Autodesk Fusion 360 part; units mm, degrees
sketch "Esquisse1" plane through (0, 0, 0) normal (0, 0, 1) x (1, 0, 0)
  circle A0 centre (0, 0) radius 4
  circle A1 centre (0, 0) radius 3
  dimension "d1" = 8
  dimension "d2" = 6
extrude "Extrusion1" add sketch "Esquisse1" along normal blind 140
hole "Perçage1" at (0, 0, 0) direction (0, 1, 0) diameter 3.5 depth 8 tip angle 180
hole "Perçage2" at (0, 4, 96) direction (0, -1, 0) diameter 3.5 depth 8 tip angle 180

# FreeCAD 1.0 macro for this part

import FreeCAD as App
import Part
import Sketcher
from FreeCAD import Vector

doc = App.newDocument("Part")
params = doc.addObject("Spreadsheet::Sheet", "Params")
for row, (alias, value) in enumerate([
    ("sketch1_diameter", "8 mm"),
    ("sketch1_diameter2", "6 mm"),
    ("pad1_length", "140 mm"),
    ("sketch2_diameter", "3.5 mm"),
    ("hole_diameter", "3.5 mm"),
    ("hole_depth", "8 mm"),
    ("sketch3_diameter", "3.5 mm"),
    ("hole2_diameter", "3.5 mm"),
    ("hole2_depth", "8 mm"),
], start=1):
    params.set(f"A{row}", alias)
    params.set(f"B{row}", "=" + value)
    params.setAlias(f"B{row}", alias)

body = doc.addObject("PartDesign::Body", "Body")

sketch1 = body.newObject("Sketcher::SketchObject", "Sketch")
sketch1.AttachmentSupport = (doc.getObject("XY_Plane"), [""])
sketch1.MapMode = "FlatFace"
sketch1.addGeometry([
    Part.Circle(Vector(0, 0, 0), Vector(0, 0, 1), 4),
    Part.Circle(Vector(0, 0, 0), Vector(0, 0, 1), 3),
], False)
sketch1.addConstraint([
    Sketcher.Constraint("Coincident", 0, 3, -1, 1),
    Sketcher.Constraint("Coincident", 1, 3, -1, 1),
    Sketcher.Constraint("Diameter", 0, 8.0),
    Sketcher.Constraint("Diameter", 1, 6.0),
])
sketch1.setExpression("Constraints[2]", "Params.sketch1_diameter")
sketch1.setExpression("Constraints[3]", "Params.sketch1_diameter2")
pad1 = body.newObject("PartDesign::Pad", "Pad")
pad1.Profile = sketch1
pad1.setExpression("Length", "Params.pad1_length")

sketch2 = body.newObject("Sketcher::SketchObject", "Sketch001")
sketch2.AttachmentSupport = (doc.getObject("XZ_Plane"), [""])
sketch2.MapMode = "FlatFace"
sketch2.addGeometry(Part.Circle(Vector(0, 0, 0), Vector(0, 0, 1), 1.75), False)
sketch2.addConstraint([
    Sketcher.Constraint("Coincident", 0, 3, -1, 1),
    Sketcher.Constraint("Diameter", 0, 3.5),
])
sketch2.setExpression("Constraints[1]", "Params.sketch2_diameter")
doc.recompute()
hole = body.newObject("PartDesign::Hole", "Hole")
hole.Profile = sketch2
hole.ThreadType = "None"
hole.setExpression("Diameter", "Params.hole_diameter")
hole.DepthType = "Dimension"
hole.setExpression("Depth", "Params.hole_depth")
hole.DrillPoint = "Flat"

sketch3 = body.newObject("Sketcher::SketchObject", "Sketch002")
sketch3.AttachmentSupport = (doc.getObject("XZ_Plane"), [""])
sketch3.MapMode = "FlatFace"
sketch3.AttachmentOffset = App.Placement(Vector(0, 0, -4), App.Rotation())
sketch3.addGeometry(Part.Circle(Vector(0, 96, 0), Vector(0, 0, 1), 1.75), False)
sketch3.addConstraint([
    Sketcher.Constraint("PointOnObject", 0, 3, -2),
    Sketcher.Constraint("Diameter", 0, 3.5),
    Sketcher.Constraint("DistanceY", -1, 1, 0, 3, 96.0),
])
sketch3.setExpression("Constraints[1]", "Params.sketch3_diameter")
doc.recompute()
hole2 = body.newObject("PartDesign::Hole", "Hole001")
hole2.Profile = sketch3
hole2.ThreadType = "None"
hole2.setExpression("Diameter", "Params.hole2_diameter")
hole2.DepthType = "Dimension"
hole2.setExpression("Depth", "Params.hole2_depth")
hole2.DrillPoint = "Flat"
hole2.Reversed = True

doc.recompute()
